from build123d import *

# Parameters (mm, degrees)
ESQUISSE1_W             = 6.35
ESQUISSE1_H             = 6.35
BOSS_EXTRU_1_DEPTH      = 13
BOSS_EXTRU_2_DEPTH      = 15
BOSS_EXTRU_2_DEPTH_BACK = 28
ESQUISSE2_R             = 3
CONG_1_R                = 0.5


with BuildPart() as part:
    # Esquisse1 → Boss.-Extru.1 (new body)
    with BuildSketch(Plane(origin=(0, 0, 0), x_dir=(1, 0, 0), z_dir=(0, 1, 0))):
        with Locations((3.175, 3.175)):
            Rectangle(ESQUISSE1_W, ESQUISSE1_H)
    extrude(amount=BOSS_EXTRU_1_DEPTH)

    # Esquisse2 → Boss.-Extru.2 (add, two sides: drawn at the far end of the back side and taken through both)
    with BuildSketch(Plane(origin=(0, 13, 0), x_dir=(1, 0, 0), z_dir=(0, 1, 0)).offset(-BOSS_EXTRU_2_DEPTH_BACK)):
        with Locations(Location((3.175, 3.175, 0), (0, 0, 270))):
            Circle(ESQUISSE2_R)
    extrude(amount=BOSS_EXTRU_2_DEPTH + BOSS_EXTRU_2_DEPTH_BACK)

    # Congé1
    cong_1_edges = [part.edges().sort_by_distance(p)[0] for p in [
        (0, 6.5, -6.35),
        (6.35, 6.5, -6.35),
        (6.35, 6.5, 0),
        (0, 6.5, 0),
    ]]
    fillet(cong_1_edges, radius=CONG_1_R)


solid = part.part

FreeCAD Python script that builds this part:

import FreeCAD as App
import Part
import Sketcher
Q = App.Units.Quantity


def edges_at(feature, points):
    """Names of the edges that pass closest to the given points."""
    edges = feature.Shape.Edges
    near = lambda p: min(range(len(edges)), key=lambda i: edges[i].distToShape(Part.Vertex(*p))[0])
    return sorted({f"Edge{near(p) + 1}" for p in points})

doc = App.newDocument("Part")
body = doc.addObject("PartDesign::Body", "Body")

# Sketch on XZ plane
sketch1 = body.newObject("Sketcher::SketchObject", "Sketch")
sketch1.AttachmentSupport = (doc.getObject("XZ_Plane"), [""])
sketch1.MapMode = "FlatFace"
sketch1.addGeometry(Part.LineSegment(App.Vector(0, -6, 0), App.Vector(0, 0, 0)), False)
sketch1.addGeometry(Part.LineSegment(App.Vector(0, 0, 0), App.Vector(6, 0, 0)), False)
sketch1.addGeometry(Part.LineSegment(App.Vector(6, 0, 0), App.Vector(6, -6, 0)), False)
sketch1.addGeometry(Part.LineSegment(App.Vector(6, -6, 0), App.Vector(0, -6, 0)), False)
sketch1.addConstraint(Sketcher.Constraint("Coincident", 0, 2, 1, 1))
sketch1.addConstraint(Sketcher.Constraint("Coincident", 1, 2, 2, 1))
sketch1.addConstraint(Sketcher.Constraint("Coincident", 2, 2, 3, 1))
sketch1.addConstraint(Sketcher.Constraint("Coincident", 3, 2, 0, 1))
sketch1.addConstraint(Sketcher.Constraint("Vertical", 0))
sketch1.addConstraint(Sketcher.Constraint("Horizontal", 1))
sketch1.addConstraint(Sketcher.Constraint("Vertical", 2))
sketch1.addConstraint(Sketcher.Constraint("Horizontal", 3))
sketch1.addConstraint(Sketcher.Constraint("Coincident", 0, 2, -1, 1))
sketch1.addConstraint(Sketcher.Constraint("Equal", 3, 0))
sketch1.addConstraint(Sketcher.Constraint("DistanceX", 1, 1, 1, 2, Q("6.35 mm")))
pad1 = body.newObject("PartDesign::Pad", "Pad")
pad1.Profile = sketch1
pad1.Length = 13
pad1.Reversed = True

# Sketch on XZ plane
sketch2 = body.newObject("Sketcher::SketchObject", "Sketch001")
sketch2.AttachmentSupport = (doc.getObject("XZ_Plane"), [""])
sketch2.MapMode = "FlatFace"
sketch2.AttachmentOffset = App.Placement(App.Vector(0, 0, -13), App.Rotation())
sketch2.addGeometry(Part.Circle(App.Vector(3.2, -3.2, 0), App.Vector(0, 0, 1), 3), False)
sketch2.addConstraint(Sketcher.Constraint("Diameter", 0, Q("6 mm")))
sketch2.addConstraint(Sketcher.Constraint("DistanceX", -1, 1, 0, 3, Q("3.175 mm")))
sketch2.addConstraint(Sketcher.Constraint("DistanceY", 0, 3, -1, 1, Q("3.175 mm")))
pad2 = body.newObject("PartDesign::Pad", "Pad001")
pad2.Profile = sketch2
pad2.Type = "TwoLengths"
pad2.Length = 15
pad2.Length2 = 28
pad2.Reversed = True
doc.recompute()

fillet = body.newObject("PartDesign::Fillet", "Fillet")
fillet.Base = (pad2, edges_at(pad2, [
    (0, 6.5, -6.35),
    (6.35, 6.5, -6.35),
    (6.35, 6.5, 0),
    (0, 6.5, 0),
]))
fillet.Radius = 0.5

doc.recompute()
